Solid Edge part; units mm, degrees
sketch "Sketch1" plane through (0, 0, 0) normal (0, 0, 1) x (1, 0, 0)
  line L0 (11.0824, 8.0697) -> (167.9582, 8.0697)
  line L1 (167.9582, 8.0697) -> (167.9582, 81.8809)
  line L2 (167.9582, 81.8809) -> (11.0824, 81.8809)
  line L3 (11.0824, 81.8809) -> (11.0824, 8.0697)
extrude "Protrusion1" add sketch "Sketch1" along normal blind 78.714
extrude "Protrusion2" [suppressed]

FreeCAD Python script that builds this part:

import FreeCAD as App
import Part
import Sketcher

V = App.Vector

doc = App.newDocument("Part")
body = doc.addObject("PartDesign::Body", "Body")

sketch1 = doc.addObject("Sketcher::SketchObject", "Sketch")
body.addObject(sketch1)
sketch1.AttachmentSupport = (doc.XY_Plane, [""])
sketch1.MapMode = "FlatFace"
sketch1.addGeometry([
    Part.LineSegment(V(11, 82, 0), V(11, 8, 0)),
    Part.LineSegment(V(11, 8, 0), V(168, 8, 0)),
    Part.LineSegment(V(168, 8, 0), V(168, 82, 0)),
    Part.LineSegment(V(168, 82, 0), V(11, 82, 0)),
], False)
sketch1.addConstraint([
    Sketcher.Constraint("Coincident", 0, 2, 1, 1),
    Sketcher.Constraint("Coincident", 1, 2, 2, 1),
    Sketcher.Constraint("Coincident", 2, 2, 3, 1),
    Sketcher.Constraint("Coincident", 3, 2, 0, 1),
    Sketcher.Constraint("Vertical", 0),
    Sketcher.Constraint("Horizontal", 1),
    Sketcher.Constraint("Vertical", 2),
    Sketcher.Constraint("Horizontal", 3),
    Sketcher.Constraint("DistanceX", 1, 1, 1, 2, 156.8758),
    Sketcher.Constraint("DistanceY", 0, 2, 0, 1, 73.8112),
    Sketcher.Constraint("DistanceY", -1, 1, 2, 2, 81.881),
    Sketcher.Constraint("DistanceX", -1, 1, 0, 2, 11.0824),
])
pad1 = doc.addObject("PartDesign::Pad", "Pad")
body.addObject(pad1)
pad1.Profile = sketch1
pad1.Length = 78.714

doc.recompute()
